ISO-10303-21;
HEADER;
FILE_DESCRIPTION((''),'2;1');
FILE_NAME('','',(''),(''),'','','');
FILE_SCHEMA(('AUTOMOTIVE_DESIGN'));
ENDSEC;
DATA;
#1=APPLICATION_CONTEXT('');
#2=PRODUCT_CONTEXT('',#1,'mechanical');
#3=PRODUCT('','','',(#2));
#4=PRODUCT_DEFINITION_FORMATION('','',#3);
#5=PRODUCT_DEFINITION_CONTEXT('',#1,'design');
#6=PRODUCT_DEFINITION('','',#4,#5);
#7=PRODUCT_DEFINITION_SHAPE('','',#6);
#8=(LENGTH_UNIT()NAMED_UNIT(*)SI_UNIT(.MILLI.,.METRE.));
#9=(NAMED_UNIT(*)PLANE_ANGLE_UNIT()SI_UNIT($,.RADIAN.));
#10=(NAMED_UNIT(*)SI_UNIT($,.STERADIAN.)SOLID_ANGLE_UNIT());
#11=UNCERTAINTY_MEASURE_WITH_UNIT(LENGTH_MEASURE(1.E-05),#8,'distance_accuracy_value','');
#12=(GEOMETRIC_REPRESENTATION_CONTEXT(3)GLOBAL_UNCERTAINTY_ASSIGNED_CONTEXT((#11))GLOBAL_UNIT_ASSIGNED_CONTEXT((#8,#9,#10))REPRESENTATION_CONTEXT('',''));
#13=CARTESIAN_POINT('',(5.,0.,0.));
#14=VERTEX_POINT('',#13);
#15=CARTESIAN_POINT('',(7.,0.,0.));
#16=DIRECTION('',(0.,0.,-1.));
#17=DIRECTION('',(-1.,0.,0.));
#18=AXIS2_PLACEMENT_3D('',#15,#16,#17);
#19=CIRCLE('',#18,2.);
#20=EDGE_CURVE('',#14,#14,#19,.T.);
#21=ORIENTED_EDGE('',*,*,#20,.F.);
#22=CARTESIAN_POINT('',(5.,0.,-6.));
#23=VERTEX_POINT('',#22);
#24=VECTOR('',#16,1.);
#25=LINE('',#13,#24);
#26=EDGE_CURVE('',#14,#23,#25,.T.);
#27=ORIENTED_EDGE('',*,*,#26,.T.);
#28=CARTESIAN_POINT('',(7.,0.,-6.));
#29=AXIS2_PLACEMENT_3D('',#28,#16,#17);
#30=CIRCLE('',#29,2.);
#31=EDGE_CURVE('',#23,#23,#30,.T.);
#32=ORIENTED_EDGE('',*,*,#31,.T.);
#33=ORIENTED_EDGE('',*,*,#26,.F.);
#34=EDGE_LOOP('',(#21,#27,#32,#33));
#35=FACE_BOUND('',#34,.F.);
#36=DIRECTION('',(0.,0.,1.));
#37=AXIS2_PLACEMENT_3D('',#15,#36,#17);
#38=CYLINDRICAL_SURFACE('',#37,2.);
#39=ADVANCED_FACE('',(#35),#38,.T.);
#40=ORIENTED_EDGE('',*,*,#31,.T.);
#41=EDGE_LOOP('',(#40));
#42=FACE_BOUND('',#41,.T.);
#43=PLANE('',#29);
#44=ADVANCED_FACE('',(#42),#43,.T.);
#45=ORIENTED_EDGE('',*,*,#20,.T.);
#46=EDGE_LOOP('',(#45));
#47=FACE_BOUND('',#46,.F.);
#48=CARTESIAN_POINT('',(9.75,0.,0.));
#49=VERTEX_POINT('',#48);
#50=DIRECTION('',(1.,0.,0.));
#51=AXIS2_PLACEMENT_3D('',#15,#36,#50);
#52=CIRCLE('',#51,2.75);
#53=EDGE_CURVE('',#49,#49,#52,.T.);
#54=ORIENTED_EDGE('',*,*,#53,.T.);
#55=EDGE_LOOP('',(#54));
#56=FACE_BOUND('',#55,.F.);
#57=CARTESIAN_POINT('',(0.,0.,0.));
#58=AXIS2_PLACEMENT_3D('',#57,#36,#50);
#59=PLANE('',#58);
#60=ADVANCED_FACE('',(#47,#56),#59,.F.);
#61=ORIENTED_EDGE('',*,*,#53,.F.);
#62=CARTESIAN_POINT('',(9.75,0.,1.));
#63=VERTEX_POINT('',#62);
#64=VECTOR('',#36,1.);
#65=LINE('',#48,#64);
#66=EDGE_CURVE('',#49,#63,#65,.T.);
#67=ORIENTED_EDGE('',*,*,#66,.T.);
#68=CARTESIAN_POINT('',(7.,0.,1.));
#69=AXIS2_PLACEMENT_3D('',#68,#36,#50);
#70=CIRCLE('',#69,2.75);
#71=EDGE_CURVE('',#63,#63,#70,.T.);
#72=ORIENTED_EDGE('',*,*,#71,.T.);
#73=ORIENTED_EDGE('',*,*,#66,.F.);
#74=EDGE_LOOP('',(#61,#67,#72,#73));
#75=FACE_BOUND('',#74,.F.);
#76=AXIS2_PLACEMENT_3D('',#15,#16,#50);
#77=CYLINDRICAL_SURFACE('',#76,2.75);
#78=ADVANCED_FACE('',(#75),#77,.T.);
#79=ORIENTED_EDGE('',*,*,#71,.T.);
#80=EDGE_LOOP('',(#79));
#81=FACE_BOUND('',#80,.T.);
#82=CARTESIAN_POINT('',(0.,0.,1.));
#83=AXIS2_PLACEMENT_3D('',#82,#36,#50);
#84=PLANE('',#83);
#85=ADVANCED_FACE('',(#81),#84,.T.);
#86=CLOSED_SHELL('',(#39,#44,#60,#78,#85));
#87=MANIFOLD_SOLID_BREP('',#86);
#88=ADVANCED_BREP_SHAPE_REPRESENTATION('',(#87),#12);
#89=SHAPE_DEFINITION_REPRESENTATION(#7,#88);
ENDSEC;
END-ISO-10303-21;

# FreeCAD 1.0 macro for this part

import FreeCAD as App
import Part
import Sketcher

V = App.Vector
Q = App.Units.Quantity

doc = App.newDocument("Part")
body = doc.addObject("PartDesign::Body", "Body")

sketch1 = body.newObject("Sketcher::SketchObject", "Sketch")
sketch1.AttachmentSupport = (doc.getObject("XY_Plane"), [""])
sketch1.MapMode = "FlatFace"
sketch1.addGeometry(Part.Circle(V(7, 0, 0), V(0, 0, 1), 2.75), False)
sketch1.addConstraint(Sketcher.Constraint("PointOnObject", 0, 3, -1))
sketch1.addConstraint(Sketcher.Constraint("Diameter", 0, Q("5.5 mm")))
sketch1.addConstraint(Sketcher.Constraint("DistanceX", -1, 1, 0, 3, Q("7 mm")))
pad1 = body.newObject("PartDesign::Pad", "Pad")
pad1.Profile = sketch1
pad1.Length = 1

sketch2 = body.newObject("Sketcher::SketchObject", "Sketch001")
sketch2.AttachmentSupport = (doc.getObject("XY_Plane"), [""])
sketch2.MapMode = "FlatFace"
sketch2.addGeometry(Part.Circle(V(7, 0, 0), V(0, 0, 1), 2), False)
sketch2.addConstraint(Sketcher.Constraint("PointOnObject", 0, 3, -1))
sketch2.addConstraint(Sketcher.Constraint("Diameter", 0, Q("4 mm")))
sketch2.addConstraint(Sketcher.Constraint("DistanceX", -1, 1, 0, 3, Q("7 mm")))
pad2 = body.newObject("PartDesign::Pad", "Pad001")
pad2.Profile = sketch2
pad2.Length = 6
pad2.Reversed = True

doc.recompute()
